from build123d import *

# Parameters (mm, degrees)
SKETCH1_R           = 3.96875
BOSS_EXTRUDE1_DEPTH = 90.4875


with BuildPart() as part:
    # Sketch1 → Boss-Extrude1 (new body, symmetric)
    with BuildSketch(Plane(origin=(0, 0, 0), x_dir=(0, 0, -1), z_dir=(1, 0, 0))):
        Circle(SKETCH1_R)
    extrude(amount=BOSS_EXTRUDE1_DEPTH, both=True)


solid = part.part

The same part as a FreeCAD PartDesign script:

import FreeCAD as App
import Part
import Sketcher
Q = App.Units.Quantity

doc = App.newDocument("Part")
body = doc.addObject("PartDesign::Body", "Body")

sketch1 = doc.addObject("Sketcher::SketchObject", "Sketch")
body.addObject(sketch1)
sketch1.AttachmentSupport = (doc.YZ_Plane, [""])
sketch1.MapMode = "FlatFace"
sketch1.addGeometry(Part.Circle(App.Vector(0, 0, 0), App.Vector(0, 0, 1), 3.96875), False)
sketch1.addConstraint(Sketcher.Constraint("Coincident", 0, 3, -1, 1))
sketch1.addConstraint(Sketcher.Constraint("Diameter", 0, Q("0.3125 in")))
pad1 = doc.addObject("PartDesign::Pad", "Pad")
body.addObject(pad1)
pad1.Profile = sketch1
pad1.Length = Q("7.125 in")
pad1.Midplane = True

doc.recompute()
